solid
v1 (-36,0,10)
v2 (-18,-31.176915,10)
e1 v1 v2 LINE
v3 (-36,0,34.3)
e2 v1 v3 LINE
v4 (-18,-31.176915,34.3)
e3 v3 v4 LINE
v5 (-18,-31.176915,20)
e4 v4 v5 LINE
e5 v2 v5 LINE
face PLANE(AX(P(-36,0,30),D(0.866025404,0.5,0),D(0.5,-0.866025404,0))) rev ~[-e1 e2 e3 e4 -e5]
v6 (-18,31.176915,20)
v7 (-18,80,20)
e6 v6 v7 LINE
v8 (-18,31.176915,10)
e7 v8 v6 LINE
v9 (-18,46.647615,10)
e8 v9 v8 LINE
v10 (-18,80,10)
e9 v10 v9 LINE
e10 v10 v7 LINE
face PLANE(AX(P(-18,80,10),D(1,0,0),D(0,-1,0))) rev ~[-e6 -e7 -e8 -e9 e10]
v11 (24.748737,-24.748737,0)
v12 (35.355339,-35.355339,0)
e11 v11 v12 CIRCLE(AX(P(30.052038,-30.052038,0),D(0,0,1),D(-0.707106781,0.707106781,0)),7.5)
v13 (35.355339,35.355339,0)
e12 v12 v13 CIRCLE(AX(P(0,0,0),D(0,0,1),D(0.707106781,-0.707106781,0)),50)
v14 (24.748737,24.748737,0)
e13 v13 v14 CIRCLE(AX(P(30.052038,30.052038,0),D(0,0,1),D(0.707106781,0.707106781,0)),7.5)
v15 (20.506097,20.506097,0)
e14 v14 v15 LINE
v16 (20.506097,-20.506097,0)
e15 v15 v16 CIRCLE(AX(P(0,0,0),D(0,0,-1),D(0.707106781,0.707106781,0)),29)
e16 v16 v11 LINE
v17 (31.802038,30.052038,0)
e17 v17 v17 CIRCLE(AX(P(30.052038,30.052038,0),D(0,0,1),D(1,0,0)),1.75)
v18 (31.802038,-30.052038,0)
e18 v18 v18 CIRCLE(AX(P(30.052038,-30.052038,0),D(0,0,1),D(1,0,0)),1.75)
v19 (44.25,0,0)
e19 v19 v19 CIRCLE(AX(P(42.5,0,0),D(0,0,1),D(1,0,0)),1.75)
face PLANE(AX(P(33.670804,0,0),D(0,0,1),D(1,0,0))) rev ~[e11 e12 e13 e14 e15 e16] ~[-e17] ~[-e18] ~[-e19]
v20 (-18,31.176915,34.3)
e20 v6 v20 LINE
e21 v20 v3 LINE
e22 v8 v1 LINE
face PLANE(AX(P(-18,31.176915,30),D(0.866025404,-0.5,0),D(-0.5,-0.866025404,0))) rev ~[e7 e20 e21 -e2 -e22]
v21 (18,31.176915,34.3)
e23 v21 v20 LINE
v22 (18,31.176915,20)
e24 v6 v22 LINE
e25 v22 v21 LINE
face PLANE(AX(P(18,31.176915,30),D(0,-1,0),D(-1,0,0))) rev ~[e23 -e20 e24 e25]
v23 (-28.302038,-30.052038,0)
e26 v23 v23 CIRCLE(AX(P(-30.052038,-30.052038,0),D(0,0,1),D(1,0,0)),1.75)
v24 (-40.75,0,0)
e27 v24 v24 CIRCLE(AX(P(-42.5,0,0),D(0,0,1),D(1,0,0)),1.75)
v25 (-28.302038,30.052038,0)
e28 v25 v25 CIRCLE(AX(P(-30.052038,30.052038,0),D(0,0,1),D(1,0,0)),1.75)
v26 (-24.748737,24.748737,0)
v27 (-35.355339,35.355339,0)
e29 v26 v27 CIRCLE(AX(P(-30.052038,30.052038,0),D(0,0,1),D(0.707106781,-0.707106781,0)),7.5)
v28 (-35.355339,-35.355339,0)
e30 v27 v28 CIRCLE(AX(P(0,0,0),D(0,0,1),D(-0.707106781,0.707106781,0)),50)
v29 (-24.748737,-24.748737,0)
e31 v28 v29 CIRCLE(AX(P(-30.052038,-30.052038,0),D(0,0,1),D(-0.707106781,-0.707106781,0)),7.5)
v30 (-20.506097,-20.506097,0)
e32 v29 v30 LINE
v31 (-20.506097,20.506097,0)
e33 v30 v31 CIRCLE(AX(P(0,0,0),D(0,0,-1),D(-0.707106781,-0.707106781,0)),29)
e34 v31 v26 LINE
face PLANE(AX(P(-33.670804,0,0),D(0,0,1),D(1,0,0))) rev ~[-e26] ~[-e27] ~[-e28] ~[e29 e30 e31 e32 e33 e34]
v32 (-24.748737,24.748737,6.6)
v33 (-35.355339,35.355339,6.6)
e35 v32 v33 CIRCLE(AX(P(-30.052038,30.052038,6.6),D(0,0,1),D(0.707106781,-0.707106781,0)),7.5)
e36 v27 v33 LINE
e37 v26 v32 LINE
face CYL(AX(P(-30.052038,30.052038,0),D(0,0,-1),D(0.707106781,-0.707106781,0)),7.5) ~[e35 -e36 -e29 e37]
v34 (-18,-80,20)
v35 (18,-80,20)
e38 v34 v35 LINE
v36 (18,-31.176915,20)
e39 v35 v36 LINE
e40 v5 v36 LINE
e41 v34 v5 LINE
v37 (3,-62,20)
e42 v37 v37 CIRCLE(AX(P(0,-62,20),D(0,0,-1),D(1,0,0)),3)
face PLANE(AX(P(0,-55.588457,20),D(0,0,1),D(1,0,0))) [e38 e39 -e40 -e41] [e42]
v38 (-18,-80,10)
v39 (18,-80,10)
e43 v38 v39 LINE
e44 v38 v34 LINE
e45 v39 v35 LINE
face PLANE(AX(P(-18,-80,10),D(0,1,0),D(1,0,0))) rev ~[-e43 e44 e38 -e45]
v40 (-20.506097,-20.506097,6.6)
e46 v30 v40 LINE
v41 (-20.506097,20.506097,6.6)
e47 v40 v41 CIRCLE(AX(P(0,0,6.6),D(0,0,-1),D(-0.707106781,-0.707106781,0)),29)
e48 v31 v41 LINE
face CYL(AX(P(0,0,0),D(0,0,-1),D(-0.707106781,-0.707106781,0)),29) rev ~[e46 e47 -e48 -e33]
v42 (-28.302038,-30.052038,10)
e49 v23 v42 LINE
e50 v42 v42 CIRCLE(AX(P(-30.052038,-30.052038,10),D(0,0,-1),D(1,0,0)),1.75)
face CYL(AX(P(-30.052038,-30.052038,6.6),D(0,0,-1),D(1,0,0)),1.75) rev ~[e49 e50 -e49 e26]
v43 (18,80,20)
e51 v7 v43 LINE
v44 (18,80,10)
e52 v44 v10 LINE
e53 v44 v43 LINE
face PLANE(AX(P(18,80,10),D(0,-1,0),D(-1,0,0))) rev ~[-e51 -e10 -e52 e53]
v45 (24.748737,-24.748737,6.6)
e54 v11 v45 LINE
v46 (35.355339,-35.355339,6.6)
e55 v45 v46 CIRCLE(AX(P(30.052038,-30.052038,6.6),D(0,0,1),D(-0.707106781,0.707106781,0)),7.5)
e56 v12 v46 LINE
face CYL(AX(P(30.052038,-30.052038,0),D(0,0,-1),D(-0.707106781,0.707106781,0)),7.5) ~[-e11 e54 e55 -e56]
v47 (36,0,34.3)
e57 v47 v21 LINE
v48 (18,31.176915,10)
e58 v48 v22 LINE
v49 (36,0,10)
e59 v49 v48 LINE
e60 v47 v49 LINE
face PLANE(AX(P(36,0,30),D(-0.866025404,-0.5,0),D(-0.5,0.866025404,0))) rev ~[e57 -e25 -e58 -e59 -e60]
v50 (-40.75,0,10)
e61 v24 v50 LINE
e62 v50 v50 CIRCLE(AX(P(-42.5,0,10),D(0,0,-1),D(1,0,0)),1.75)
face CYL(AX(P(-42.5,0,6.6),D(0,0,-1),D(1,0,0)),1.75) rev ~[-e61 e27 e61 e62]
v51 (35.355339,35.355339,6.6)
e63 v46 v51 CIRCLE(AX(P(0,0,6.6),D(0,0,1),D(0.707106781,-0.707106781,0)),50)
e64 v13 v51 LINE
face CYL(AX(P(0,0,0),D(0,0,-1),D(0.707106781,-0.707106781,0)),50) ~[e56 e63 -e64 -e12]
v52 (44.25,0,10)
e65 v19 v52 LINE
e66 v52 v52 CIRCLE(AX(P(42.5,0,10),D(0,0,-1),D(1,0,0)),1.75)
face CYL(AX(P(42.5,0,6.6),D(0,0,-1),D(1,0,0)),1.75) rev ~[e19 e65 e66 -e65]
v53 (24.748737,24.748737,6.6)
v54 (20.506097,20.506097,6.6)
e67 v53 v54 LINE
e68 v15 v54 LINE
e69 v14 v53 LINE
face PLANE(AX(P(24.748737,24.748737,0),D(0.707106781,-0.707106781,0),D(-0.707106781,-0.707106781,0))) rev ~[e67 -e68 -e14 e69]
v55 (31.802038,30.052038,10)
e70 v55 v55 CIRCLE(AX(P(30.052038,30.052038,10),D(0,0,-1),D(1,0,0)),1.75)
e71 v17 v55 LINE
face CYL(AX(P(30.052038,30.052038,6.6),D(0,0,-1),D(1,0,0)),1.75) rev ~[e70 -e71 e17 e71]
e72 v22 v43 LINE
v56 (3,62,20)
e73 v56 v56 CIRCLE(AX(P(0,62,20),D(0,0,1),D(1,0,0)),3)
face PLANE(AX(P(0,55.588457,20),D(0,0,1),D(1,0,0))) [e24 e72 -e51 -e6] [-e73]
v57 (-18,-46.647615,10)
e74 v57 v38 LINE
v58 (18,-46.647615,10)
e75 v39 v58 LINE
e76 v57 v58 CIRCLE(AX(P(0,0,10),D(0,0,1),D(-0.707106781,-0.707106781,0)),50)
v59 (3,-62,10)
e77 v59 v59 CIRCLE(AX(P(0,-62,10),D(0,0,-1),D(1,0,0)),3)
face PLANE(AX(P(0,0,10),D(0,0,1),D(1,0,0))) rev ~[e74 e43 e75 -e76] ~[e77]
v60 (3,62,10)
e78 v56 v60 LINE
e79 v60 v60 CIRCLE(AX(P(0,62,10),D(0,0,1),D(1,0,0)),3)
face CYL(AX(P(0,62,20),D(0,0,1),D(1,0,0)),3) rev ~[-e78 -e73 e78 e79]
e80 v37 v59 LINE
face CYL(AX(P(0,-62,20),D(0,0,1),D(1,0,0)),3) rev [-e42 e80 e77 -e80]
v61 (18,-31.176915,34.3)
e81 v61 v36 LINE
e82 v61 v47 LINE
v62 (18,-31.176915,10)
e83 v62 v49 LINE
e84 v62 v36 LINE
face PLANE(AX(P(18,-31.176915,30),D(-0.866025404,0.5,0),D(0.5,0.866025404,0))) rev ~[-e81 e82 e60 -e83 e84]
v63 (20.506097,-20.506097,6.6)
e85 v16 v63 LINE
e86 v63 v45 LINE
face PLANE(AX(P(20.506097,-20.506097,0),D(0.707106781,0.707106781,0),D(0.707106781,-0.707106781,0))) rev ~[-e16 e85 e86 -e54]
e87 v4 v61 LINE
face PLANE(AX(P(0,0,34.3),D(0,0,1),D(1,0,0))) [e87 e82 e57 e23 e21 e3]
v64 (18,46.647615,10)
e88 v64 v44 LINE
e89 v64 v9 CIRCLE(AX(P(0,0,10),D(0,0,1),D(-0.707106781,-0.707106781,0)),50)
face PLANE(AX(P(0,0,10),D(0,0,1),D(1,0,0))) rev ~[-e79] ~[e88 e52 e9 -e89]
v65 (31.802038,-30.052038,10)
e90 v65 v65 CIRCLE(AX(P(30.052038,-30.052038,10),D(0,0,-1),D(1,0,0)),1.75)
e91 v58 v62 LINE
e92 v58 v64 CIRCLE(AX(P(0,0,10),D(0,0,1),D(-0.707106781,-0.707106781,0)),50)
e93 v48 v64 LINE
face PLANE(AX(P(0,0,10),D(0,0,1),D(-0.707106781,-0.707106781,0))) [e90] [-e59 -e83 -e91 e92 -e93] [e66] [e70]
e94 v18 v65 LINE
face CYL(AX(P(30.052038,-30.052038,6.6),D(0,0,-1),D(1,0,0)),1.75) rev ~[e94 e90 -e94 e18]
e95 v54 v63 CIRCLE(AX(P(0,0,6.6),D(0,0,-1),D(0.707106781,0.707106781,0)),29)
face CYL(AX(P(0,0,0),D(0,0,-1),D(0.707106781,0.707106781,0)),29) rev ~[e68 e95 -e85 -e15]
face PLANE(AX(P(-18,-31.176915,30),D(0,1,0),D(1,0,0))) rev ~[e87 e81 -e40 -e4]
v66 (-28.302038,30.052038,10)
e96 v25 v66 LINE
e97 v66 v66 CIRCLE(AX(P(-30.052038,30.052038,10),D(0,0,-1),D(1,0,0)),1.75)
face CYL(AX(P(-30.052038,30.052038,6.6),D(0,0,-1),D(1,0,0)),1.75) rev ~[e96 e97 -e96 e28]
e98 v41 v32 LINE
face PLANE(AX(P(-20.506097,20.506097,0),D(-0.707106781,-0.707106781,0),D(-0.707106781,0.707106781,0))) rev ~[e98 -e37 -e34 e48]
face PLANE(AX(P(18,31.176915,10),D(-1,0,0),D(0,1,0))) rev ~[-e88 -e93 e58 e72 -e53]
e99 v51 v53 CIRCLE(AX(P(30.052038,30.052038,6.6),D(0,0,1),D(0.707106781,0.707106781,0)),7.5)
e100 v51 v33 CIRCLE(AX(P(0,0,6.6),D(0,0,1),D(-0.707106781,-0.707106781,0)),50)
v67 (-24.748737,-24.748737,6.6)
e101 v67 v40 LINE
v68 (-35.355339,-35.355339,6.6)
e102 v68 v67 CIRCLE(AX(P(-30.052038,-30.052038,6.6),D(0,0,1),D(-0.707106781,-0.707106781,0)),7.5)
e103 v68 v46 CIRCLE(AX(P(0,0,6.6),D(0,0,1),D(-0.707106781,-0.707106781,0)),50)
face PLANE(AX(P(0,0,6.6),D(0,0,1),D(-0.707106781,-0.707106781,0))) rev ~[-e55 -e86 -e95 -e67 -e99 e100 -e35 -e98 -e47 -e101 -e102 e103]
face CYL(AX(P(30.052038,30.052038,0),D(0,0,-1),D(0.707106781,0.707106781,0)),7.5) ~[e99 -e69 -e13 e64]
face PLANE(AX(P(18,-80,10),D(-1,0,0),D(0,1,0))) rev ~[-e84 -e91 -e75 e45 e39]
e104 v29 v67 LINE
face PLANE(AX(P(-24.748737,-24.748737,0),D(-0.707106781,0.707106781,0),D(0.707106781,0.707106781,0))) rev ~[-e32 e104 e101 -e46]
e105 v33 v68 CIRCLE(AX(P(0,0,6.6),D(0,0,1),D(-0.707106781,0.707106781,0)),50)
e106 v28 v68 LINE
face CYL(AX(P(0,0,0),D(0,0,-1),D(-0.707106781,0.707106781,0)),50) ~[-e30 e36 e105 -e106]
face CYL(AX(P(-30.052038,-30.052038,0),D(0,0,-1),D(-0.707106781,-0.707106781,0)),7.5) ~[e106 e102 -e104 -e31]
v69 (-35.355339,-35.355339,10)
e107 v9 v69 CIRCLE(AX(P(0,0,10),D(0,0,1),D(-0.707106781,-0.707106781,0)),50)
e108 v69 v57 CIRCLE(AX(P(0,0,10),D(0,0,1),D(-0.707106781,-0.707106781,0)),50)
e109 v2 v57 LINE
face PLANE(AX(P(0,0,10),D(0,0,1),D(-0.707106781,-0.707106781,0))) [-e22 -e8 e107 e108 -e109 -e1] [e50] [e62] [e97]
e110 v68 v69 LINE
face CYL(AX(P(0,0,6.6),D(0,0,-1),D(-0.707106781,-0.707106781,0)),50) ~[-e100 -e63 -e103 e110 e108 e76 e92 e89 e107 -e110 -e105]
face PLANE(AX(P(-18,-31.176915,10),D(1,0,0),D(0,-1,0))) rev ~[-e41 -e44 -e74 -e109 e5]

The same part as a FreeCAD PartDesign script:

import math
import FreeCAD as App
import Part
import Sketcher

V = App.Vector
Q = App.Units.Quantity


def add_polygon(sketch, points):
    """Adds a closed chain of lines whose ends are joined by coincident constraints."""
    first, n = sketch.GeometryCount, len(points)
    for a, b in zip(points, points[1:] + points[:1]):
        sketch.addGeometry(Part.LineSegment(App.Vector(*a, 0), App.Vector(*b, 0)), False)
    for i in range(n):
        sketch.addConstraint(Sketcher.Constraint("Coincident", first + i, 2, first + (i + 1) % n, 1))

doc = App.newDocument("Part")
body = doc.addObject("PartDesign::Body", "Body")

sketch1 = body.newObject("Sketcher::SketchObject", "Sketch")
sketch1.AttachmentSupport = (doc.getObject("XY_Plane"), [""])
sketch1.MapMode = "FlatFace"
sketch1.addGeometry([
    Part.ArcOfCircle(Part.Circle(V(0, 0, 0), V(0, 0, 1), 29), math.radians(-45), math.radians(45)),
    Part.LineSegment(V(20.506097, -20.506097, 0), V(24.748737, -24.748737, 0)),
    Part.ArcOfCircle(Part.Circle(V(30.052038, -30.052038, 0), V(0, 0, 1), 7.5), math.radians(135), math.radians(315)),
    Part.ArcOfCircle(Part.Circle(V(0, 0, 0), V(0, 0, 1), 50), math.radians(-45), math.radians(45)),
    Part.ArcOfCircle(Part.Circle(V(30.052038, 30.052038, 0), V(0, 0, 1), 7.5), math.radians(45), math.radians(225)),
    Part.LineSegment(V(24.748737, 24.748737, 0), V(20.506097, 20.506097, 0)),
    Part.Circle(V(30.052038, -30.052038, 0), V(0, 0, 1), 1.75),
    Part.Circle(V(42.5, 0, 0), V(0, 0, 1), 1.75),
    Part.Circle(V(30.052038, 30.052038, 0), V(0, 0, 1), 1.75),
], False)
sketch1.addConstraint([
    Sketcher.Constraint("Coincident", 0, 1, 1, 1),
    Sketcher.Constraint("Coincident", 1, 2, 2, 1),
    Sketcher.Constraint("Tangent", 2, 2, 3, 1),
    Sketcher.Constraint("Tangent", 3, 2, 4, 1),
    Sketcher.Constraint("Coincident", 4, 2, 5, 1),
    Sketcher.Constraint("Coincident", 5, 2, 0, 2),
    Sketcher.Constraint("Coincident", 0, 3, -1, 1),
    Sketcher.Constraint("Coincident", 3, 3, -1, 1),
    Sketcher.Constraint("Coincident", 6, 3, 2, 3),
    Sketcher.Constraint("Coincident", 8, 3, 4, 3),
    Sketcher.Constraint("Equal", 2, 4),
    Sketcher.Constraint("Equal", 6, 7),
    Sketcher.Constraint("Equal", 7, 8),
    Sketcher.Constraint("PointOnObject", 7, 3, -1),
    Sketcher.Constraint("Perpendicular", 1, 5),
    Sketcher.Constraint("Vertical", 2, 3, 4, 3),
    Sketcher.Constraint("Vertical", 1, 2, 4, 2),
    Sketcher.Constraint("Vertical", 0, 1, 5, 2),
    Sketcher.Constraint("Radius", 0, 29.0),
    Sketcher.Constraint("Radius", 3, 50.0),
    Sketcher.Constraint("Diameter", 6, 3.5),
    Sketcher.Constraint("Radius", 2, 7.5),
    Sketcher.Constraint("DistanceX", -1, 1, 7, 3, 42.5),
    Sketcher.Constraint("DistanceX", 1, 2, 6, 3, 5.303301),
    Sketcher.Constraint("DistanceX", 2, 3, 2, 2, 5.303301),
])
pad1 = body.newObject("PartDesign::Pad", "Pad")
pad1.Profile = sketch1
pad1.Length = 6.6
body2 = doc.addObject("PartDesign::Body", "Body001")

sketch2 = body2.newObject("Sketcher::SketchObject", "Sketch001")
sketch2.AttachmentSupport = (doc.getObject("XY_Plane001"), [""])
sketch2.MapMode = "FlatFace"
sketch2.addGeometry([
    Part.ArcOfCircle(Part.Circle(V(0, 0, 0), V(0, 0, 1), 50), math.radians(135), math.radians(225)),
    Part.ArcOfCircle(Part.Circle(V(-30.052038, -30.052038, 0), V(0, 0, 1), 7.5), math.radians(-135), math.radians(45)),
    Part.LineSegment(V(-24.748737, -24.748737, 0), V(-20.506097, -20.506097, 0)),
    Part.ArcOfCircle(Part.Circle(V(0, 0, 0), V(0, 0, 1), 29), math.radians(135), math.radians(225)),
    Part.LineSegment(V(-20.506097, 20.506097, 0), V(-24.748737, 24.748737, 0)),
    Part.ArcOfCircle(Part.Circle(V(-30.052038, 30.052038, 0), V(0, 0, 1), 7.5), math.radians(-45), math.radians(135)),
    Part.Circle(V(-42.5, 0, 0), V(0, 0, 1), 1.75),
    Part.Circle(V(-30.052038, -30.052038, 0), V(0, 0, 1), 1.75),
    Part.Circle(V(-30.052038, 30.052038, 0), V(0, 0, 1), 1.75),
], False)
sketch2.addConstraint([
    Sketcher.Constraint("Tangent", 0, 2, 1, 1),
    Sketcher.Constraint("Coincident", 1, 2, 2, 1),
    Sketcher.Constraint("Coincident", 2, 2, 3, 2),
    Sketcher.Constraint("Coincident", 3, 1, 4, 1),
    Sketcher.Constraint("Coincident", 4, 2, 5, 1),
    Sketcher.Constraint("Tangent", 5, 2, 0, 1),
    Sketcher.Constraint("Coincident", 0, 3, -1, 1),
    Sketcher.Constraint("Coincident", 3, 3, -1, 1),
    Sketcher.Constraint("Coincident", 7, 3, 1, 3),
    Sketcher.Constraint("Coincident", 8, 3, 5, 3),
    Sketcher.Constraint("Equal", 1, 5),
    Sketcher.Constraint("Equal", 6, 7),
    Sketcher.Constraint("Equal", 7, 8),
    Sketcher.Constraint("PointOnObject", 6, 3, -1),
    Sketcher.Constraint("Perpendicular", 2, 4),
    Sketcher.Constraint("Vertical", 1, 3, 5, 3),
    Sketcher.Constraint("Vertical", 2, 2, 3, 1),
    Sketcher.Constraint("Vertical", 1, 2, 4, 2),
    Sketcher.Constraint("Radius", 0, 50.0),
    Sketcher.Constraint("Radius", 3, 29.0),
    Sketcher.Constraint("Diameter", 6, 3.5),
    Sketcher.Constraint("Radius", 1, 7.5),
    Sketcher.Constraint("DistanceX", 6, 3, -1, 1, 42.5),
    Sketcher.Constraint("DistanceX", 7, 3, 1, 2, 5.303301),
    Sketcher.Constraint("DistanceX", 5, 2, 5, 3, 5.303301),
])
pad2 = body2.newObject("PartDesign::Pad", "Pad001")
pad2.Profile = sketch2
pad2.Length = 6.6
body.AllowCompound = True
doc.recompute()

boolean = body.newObject("PartDesign::Boolean", "Boolean")
boolean.Type = "Fuse"
boolean.addObjects([body2])

sketch3 = body.newObject("Sketcher::SketchObject", "Sketch002")
sketch3.AttachmentSupport = (doc.getObject("XY_Plane"), [""])
sketch3.MapMode = "FlatFace"
sketch3.AttachmentOffset = App.Placement(V(0, 0, 6.6), App.Rotation())
sketch3.addGeometry(Part.Circle(V(0, 0, 0), V(0, 0, 1), 50), False)
sketch3.addConstraint([
    Sketcher.Constraint("Coincident", 0, 3, -1, 1),
    Sketcher.Constraint("Diameter", 0, 100.0),
])
pad3 = body.newObject("PartDesign::Pad", "Pad002")
pad3.Profile = sketch3
pad3.Length = 3.4

sketch4 = body.newObject("Sketcher::SketchObject", "Sketch003")
sketch4.AttachmentSupport = (doc.getObject("XY_Plane"), [""])
sketch4.MapMode = "FlatFace"
sketch4.AttachmentOffset = App.Placement(V(0, 0, 6.6), App.Rotation())
sketch4.addGeometry([
    Part.Circle(V(42.5, 0, 0), V(0, 0, 1), 1.75),
    Part.Circle(V(30.052038, 30.052038, 0), V(0, 0, 1), 1.75),
    Part.Circle(V(30.052038, -30.052038, 0), V(0, 0, 1), 1.75),
    Part.Circle(V(-30.052038, -30.052038, 0), V(0, 0, 1), 1.75),
    Part.Circle(V(-42.5, 0, 0), V(0, 0, 1), 1.75),
    Part.Circle(V(-30.052038, 30.052038, 0), V(0, 0, 1), 1.75),
], False)
sketch4.addConstraint([
    Sketcher.Constraint("Equal", 0, 1),
    Sketcher.Constraint("Equal", 1, 2),
    Sketcher.Constraint("Equal", 2, 3),
    Sketcher.Constraint("Equal", 3, 4),
    Sketcher.Constraint("Equal", 4, 5),
    Sketcher.Constraint("Symmetric", 1, 3, 3, 3, -1, 1),
    Sketcher.Constraint("Symmetric", 0, 3, 4, 3, -1, 1),
    Sketcher.Constraint("Symmetric", 2, 3, 5, 3, -1, 1),
    Sketcher.Constraint("Symmetric", 2, 3, 3, 3, -2),
    Sketcher.Constraint("PointOnObject", 0, 3, -1),
    Sketcher.Constraint("Diameter", 0, 3.5),
    Sketcher.Constraint("DistanceX", 4, 3, 0, 3, 85.0),
    Sketcher.Constraint("DistanceX", -1, 1, 1, 3, 30.052038),
    Sketcher.Constraint("DistanceY", -1, 1, 1, 3, 30.052038),
])
pocket1 = body.newObject("PartDesign::Pocket", "Pocket")
pocket1.Profile = sketch4
pocket1.Length = 20
pocket1.Midplane = True

sketch5 = body.newObject("Sketcher::SketchObject", "Sketch004")
sketch5.AttachmentSupport = (doc.getObject("XY_Plane"), [""])
sketch5.MapMode = "FlatFace"
sketch5.AttachmentOffset = App.Placement(V(0, 0, 10), App.Rotation())
add_polygon(sketch5, [(-18, -31.176915), (-18, -80), (18, -80), (18, -31.176915), (36, 0), (18, 31.176915), (18, 80), (-18, 80), (-18, 31.176915), (-36, 0)])
sketch5.addConstraint([
    Sketcher.Constraint("Vertical", 0),
    Sketcher.Constraint("Horizontal", 1),
    Sketcher.Constraint("Vertical", 2),
    Sketcher.Constraint("Vertical", 5),
    Sketcher.Constraint("Horizontal", 6),
    Sketcher.Constraint("Vertical", 7),
    Sketcher.Constraint("Symmetric", 0, 2, 5, 2, -1, 1),
    Sketcher.Constraint("Symmetric", 2, 2, 7, 2, -1, 1),
    Sketcher.Constraint("Symmetric", 3, 2, 8, 2, -1, 1),
    Sketcher.Constraint("Symmetric", 4, 2, 7, 2, -2),
    Sketcher.Constraint("PointOnObject", 3, 2, -1),
    Sketcher.Constraint("Parallel", 4, 9),
    Sketcher.Constraint("DistanceX", 1, 1, 1, 2, 36.0),
    Sketcher.Constraint("Angle", 3, Q("60 deg")),
    Sketcher.Constraint("Distance", 3, 36.0),
    Sketcher.Constraint("DistanceY", 0, 2, -1, 1, 80.0),
])
pad4 = body.newObject("PartDesign::Pad", "Pad003")
pad4.Profile = sketch5
pad4.Length = 20

sketch6 = body.newObject("Sketcher::SketchObject", "Sketch005")
sketch6.AttachmentSupport = (doc.getObject("XY_Plane"), [""])
sketch6.MapMode = "FlatFace"
sketch6.AttachmentOffset = App.Placement(V(0, 0, 30), App.Rotation())
add_polygon(sketch6, [(-18, -31.176915), (-18, -80), (18, -80), (18, -31.176915)])
add_polygon(sketch6, [(-18, 80), (-18, 31.176915), (18, 31.176915), (18, 80)])
sketch6.addConstraint([
    Sketcher.Constraint("Vertical", 0),
    Sketcher.Constraint("Horizontal", 1),
    Sketcher.Constraint("Vertical", 2),
    Sketcher.Constraint("Horizontal", 3),
    Sketcher.Constraint("Vertical", 4),
    Sketcher.Constraint("Horizontal", 5),
    Sketcher.Constraint("Vertical", 6),
    Sketcher.Constraint("Horizontal", 7),
    Sketcher.Constraint("Symmetric", 2, 2, 4, 2, -1, 1),
    Sketcher.Constraint("Symmetric", 0, 2, 6, 2, -1, 1),
    Sketcher.Constraint("Vertical", 3, 2, 4, 2),
    Sketcher.Constraint("DistanceX", 1, 1, 1, 2, 36.0),
    Sketcher.Constraint("DistanceY", 0, 2, -1, 1, 80.0),
    Sketcher.Constraint("DistanceY", 0, 2, 0, 1, 48.823085),
])
pocket2 = body.newObject("PartDesign::Pocket", "Pocket001")
pocket2.Profile = sketch6
pocket2.Length = 10

sketch7 = body.newObject("Sketcher::SketchObject", "Sketch006")
sketch7.AttachmentSupport = (doc.getObject("XY_Plane"), [""])
sketch7.MapMode = "FlatFace"
sketch7.AttachmentOffset = App.Placement(V(0, 0, 20), App.Rotation())
sketch7.addGeometry(Part.Circle(V(0, 62, 0), V(0, 0, 1), 3), False)
sketch7.addConstraint([
    Sketcher.Constraint("PointOnObject", 0, 3, -2),
    Sketcher.Constraint("Diameter", 0, 6.0),
    Sketcher.Constraint("DistanceY", -1, 1, 0, 3, 62.0),
])
pocket3 = body.newObject("PartDesign::Pocket", "Pocket002")
pocket3.Profile = sketch7
pocket3.Length = 10
doc.recompute()

mirrored = body.newObject("PartDesign::Mirrored", "Mirrored")
mirrored.Originals = [pocket3]
mirrored.MirrorPlane = (doc.getObject("XZ_Plane"), [""])
body.Tip = mirrored

sketch8 = body.newObject("Sketcher::SketchObject", "Sketch007")
sketch8.AttachmentSupport = (doc.getObject("XY_Plane"), [""])
sketch8.MapMode = "FlatFace"
sketch8.AttachmentOffset = App.Placement(V(0, 0, 30), App.Rotation())
add_polygon(sketch8, [(36, 0), (18, 31.176915), (-18, 31.176915), (-36, 0), (-18, -31.176915), (18, -31.176915)])
sketch8.addConstraint([
    Sketcher.Constraint("Horizontal", 1),
    Sketcher.Constraint("Horizontal", 4),
    Sketcher.Constraint("Symmetric", 0, 2, 3, 2, -1, 1),
    Sketcher.Constraint("Symmetric", 2, 2, 5, 2, -1, 1),
    Sketcher.Constraint("PointOnObject", 2, 2, -1),
    Sketcher.Constraint("Parallel", 2, 5),
    Sketcher.Constraint("Vertical", 1, 2, 3, 2),
    Sketcher.Constraint("DistanceX", 1, 2, 1, 1, 36.0),
    Sketcher.Constraint("Angle", 0, Q("120 deg")),
    Sketcher.Constraint("Distance", 0, 36.0),
])
pad5 = body.newObject("PartDesign::Pad", "Pad004")
pad5.Profile = sketch8
pad5.Length = 4.3

doc.recompute()
